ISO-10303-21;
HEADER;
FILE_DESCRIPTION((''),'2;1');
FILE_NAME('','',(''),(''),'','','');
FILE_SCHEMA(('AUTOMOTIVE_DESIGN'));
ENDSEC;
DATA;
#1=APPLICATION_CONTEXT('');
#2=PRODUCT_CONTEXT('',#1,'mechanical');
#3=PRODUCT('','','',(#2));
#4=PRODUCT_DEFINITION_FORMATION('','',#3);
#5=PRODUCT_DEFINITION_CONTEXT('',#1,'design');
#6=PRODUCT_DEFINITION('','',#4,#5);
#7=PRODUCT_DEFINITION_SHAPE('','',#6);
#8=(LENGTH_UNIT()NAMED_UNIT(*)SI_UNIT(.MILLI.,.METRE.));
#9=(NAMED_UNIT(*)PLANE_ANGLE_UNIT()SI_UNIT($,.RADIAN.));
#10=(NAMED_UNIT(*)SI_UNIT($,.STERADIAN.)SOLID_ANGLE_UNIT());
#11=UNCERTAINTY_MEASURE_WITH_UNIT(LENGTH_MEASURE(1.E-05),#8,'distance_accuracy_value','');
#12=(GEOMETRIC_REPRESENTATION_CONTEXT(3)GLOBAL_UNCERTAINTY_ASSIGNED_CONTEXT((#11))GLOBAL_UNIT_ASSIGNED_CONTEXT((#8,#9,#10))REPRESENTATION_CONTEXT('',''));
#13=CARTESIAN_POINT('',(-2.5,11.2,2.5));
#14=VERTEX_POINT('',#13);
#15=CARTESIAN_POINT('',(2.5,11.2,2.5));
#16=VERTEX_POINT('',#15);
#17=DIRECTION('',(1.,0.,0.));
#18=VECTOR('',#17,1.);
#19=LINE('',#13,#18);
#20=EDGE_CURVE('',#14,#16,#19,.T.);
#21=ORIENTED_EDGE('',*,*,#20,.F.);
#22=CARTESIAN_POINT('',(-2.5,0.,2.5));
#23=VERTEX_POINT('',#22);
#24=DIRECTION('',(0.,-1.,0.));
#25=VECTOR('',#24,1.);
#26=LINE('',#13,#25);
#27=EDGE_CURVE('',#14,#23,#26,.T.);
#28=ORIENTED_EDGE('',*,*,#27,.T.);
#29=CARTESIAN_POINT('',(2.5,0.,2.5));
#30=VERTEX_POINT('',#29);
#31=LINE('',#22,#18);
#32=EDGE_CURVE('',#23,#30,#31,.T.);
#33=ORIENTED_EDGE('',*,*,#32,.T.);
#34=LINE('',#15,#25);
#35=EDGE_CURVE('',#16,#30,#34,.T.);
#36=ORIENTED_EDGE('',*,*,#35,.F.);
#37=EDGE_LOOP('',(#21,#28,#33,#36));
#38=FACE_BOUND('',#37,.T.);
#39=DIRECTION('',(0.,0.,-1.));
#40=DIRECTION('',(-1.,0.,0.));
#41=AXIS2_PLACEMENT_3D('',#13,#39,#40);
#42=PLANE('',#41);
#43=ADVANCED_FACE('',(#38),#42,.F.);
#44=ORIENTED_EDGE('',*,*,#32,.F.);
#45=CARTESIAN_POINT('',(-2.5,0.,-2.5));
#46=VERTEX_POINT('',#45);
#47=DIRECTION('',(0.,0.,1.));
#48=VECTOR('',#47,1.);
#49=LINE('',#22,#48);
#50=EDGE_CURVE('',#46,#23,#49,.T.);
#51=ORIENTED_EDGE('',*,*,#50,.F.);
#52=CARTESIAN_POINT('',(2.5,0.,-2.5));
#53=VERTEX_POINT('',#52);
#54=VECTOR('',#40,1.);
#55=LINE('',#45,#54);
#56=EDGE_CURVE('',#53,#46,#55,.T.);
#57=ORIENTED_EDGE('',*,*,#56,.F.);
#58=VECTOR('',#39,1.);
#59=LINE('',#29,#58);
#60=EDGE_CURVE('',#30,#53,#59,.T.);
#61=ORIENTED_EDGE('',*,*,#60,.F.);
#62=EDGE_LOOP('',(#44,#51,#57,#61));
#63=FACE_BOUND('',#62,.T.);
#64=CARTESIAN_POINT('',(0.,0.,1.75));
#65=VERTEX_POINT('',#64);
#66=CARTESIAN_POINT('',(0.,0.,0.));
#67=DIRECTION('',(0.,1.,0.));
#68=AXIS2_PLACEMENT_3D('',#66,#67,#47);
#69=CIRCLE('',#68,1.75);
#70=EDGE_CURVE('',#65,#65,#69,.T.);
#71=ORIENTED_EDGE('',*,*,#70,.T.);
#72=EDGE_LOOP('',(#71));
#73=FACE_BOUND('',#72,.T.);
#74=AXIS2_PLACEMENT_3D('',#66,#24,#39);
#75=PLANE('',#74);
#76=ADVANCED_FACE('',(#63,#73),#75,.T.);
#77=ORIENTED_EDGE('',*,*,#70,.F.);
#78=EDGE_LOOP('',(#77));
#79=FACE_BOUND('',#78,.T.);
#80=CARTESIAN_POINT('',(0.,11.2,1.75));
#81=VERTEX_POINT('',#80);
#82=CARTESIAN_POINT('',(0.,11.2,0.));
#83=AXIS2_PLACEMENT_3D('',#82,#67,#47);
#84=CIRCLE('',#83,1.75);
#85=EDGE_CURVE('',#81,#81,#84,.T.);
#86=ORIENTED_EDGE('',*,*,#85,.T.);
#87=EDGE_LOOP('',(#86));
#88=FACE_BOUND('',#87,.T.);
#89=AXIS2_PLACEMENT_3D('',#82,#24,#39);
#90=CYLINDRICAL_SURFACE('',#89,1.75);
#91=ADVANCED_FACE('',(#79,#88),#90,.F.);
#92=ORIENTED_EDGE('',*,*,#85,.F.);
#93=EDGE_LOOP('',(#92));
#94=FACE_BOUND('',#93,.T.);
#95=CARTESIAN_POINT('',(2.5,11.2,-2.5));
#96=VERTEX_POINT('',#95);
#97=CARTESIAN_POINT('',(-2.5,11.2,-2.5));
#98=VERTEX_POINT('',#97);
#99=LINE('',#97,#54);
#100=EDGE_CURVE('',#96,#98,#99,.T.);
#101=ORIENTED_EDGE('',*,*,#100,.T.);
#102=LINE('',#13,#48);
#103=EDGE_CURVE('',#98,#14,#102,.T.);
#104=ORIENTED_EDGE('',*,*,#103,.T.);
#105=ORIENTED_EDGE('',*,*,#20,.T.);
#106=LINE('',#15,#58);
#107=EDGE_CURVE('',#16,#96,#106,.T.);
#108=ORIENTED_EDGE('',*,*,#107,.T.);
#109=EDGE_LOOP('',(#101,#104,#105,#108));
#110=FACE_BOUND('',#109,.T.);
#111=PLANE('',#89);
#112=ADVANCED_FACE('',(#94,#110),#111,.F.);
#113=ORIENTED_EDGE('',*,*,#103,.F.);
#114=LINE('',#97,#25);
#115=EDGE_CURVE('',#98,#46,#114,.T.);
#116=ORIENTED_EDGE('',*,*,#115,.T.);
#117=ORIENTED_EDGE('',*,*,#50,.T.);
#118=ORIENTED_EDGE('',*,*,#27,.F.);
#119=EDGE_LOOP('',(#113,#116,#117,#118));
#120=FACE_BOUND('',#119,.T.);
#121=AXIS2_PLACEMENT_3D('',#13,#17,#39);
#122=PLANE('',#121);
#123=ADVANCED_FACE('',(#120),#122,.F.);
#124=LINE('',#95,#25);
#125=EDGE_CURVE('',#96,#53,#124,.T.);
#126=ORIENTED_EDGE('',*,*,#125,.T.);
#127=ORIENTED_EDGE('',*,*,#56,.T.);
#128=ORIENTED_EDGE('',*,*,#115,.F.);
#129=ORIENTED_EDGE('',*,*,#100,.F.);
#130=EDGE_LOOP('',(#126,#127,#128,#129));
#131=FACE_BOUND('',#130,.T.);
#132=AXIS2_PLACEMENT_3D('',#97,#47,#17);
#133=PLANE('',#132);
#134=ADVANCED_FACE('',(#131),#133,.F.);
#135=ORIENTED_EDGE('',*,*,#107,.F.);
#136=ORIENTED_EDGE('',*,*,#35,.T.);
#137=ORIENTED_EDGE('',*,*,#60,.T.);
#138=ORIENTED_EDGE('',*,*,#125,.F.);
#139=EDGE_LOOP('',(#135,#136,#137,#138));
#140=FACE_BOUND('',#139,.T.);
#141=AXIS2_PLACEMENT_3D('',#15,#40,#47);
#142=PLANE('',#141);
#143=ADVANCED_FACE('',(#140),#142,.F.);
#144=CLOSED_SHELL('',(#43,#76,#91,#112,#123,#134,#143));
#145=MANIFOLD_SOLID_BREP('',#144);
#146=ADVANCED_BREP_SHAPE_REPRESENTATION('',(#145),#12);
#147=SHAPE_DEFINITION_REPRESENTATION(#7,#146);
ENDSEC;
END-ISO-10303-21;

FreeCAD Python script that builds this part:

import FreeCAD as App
import Part
import Sketcher
from FreeCAD import Vector
Q = App.Units.Quantity

doc = App.newDocument("Part")
body = doc.addObject("PartDesign::Body", "Body")

sketch1 = body.newObject("Sketcher::SketchObject", "Sketch")
sketch1.AttachmentSupport = (doc.getObject("XZ_Plane"), [""])
sketch1.MapMode = "FlatFace"
sketch1.addGeometry([
    Part.LineSegment(Vector(-2.5, -2.5, 0), Vector(-2.5, 2.5, 0)),
    Part.LineSegment(Vector(-2.5, 2.5, 0), Vector(2.5, 2.5, 0)),
    Part.LineSegment(Vector(2.5, 2.5, 0), Vector(2.5, -2.5, 0)),
    Part.LineSegment(Vector(2.5, -2.5, 0), Vector(-2.5, -2.5, 0)),
    Part.Circle(Vector(0, 0, 0), Vector(0, 0, 1), 1.8),
], False)
sketch1.addConstraint([
    Sketcher.Constraint("Coincident", 0, 2, 1, 1),
    Sketcher.Constraint("Coincident", 1, 2, 2, 1),
    Sketcher.Constraint("Coincident", 2, 2, 3, 1),
    Sketcher.Constraint("Coincident", 3, 2, 0, 1),
    Sketcher.Constraint("Vertical", 0),
    Sketcher.Constraint("Horizontal", 1),
    Sketcher.Constraint("Vertical", 2),
    Sketcher.Constraint("Horizontal", 3),
    Sketcher.Constraint("Coincident", 4, 3, -1, 1),
    Sketcher.Constraint("Symmetric", 0, 2, 2, 2, -1, 1),
    Sketcher.Constraint("Equal", 3, 0),
    Sketcher.Constraint("Diameter", 4, Q("3.5 mm")),
    Sketcher.Constraint("DistanceX", 1, 1, 1, 2, Q("5 mm")),
])
pad1 = body.newObject("PartDesign::Pad", "Pad")
pad1.Profile = sketch1
pad1.Length = 11.2
pad1.Reversed = True

doc.recompute()
